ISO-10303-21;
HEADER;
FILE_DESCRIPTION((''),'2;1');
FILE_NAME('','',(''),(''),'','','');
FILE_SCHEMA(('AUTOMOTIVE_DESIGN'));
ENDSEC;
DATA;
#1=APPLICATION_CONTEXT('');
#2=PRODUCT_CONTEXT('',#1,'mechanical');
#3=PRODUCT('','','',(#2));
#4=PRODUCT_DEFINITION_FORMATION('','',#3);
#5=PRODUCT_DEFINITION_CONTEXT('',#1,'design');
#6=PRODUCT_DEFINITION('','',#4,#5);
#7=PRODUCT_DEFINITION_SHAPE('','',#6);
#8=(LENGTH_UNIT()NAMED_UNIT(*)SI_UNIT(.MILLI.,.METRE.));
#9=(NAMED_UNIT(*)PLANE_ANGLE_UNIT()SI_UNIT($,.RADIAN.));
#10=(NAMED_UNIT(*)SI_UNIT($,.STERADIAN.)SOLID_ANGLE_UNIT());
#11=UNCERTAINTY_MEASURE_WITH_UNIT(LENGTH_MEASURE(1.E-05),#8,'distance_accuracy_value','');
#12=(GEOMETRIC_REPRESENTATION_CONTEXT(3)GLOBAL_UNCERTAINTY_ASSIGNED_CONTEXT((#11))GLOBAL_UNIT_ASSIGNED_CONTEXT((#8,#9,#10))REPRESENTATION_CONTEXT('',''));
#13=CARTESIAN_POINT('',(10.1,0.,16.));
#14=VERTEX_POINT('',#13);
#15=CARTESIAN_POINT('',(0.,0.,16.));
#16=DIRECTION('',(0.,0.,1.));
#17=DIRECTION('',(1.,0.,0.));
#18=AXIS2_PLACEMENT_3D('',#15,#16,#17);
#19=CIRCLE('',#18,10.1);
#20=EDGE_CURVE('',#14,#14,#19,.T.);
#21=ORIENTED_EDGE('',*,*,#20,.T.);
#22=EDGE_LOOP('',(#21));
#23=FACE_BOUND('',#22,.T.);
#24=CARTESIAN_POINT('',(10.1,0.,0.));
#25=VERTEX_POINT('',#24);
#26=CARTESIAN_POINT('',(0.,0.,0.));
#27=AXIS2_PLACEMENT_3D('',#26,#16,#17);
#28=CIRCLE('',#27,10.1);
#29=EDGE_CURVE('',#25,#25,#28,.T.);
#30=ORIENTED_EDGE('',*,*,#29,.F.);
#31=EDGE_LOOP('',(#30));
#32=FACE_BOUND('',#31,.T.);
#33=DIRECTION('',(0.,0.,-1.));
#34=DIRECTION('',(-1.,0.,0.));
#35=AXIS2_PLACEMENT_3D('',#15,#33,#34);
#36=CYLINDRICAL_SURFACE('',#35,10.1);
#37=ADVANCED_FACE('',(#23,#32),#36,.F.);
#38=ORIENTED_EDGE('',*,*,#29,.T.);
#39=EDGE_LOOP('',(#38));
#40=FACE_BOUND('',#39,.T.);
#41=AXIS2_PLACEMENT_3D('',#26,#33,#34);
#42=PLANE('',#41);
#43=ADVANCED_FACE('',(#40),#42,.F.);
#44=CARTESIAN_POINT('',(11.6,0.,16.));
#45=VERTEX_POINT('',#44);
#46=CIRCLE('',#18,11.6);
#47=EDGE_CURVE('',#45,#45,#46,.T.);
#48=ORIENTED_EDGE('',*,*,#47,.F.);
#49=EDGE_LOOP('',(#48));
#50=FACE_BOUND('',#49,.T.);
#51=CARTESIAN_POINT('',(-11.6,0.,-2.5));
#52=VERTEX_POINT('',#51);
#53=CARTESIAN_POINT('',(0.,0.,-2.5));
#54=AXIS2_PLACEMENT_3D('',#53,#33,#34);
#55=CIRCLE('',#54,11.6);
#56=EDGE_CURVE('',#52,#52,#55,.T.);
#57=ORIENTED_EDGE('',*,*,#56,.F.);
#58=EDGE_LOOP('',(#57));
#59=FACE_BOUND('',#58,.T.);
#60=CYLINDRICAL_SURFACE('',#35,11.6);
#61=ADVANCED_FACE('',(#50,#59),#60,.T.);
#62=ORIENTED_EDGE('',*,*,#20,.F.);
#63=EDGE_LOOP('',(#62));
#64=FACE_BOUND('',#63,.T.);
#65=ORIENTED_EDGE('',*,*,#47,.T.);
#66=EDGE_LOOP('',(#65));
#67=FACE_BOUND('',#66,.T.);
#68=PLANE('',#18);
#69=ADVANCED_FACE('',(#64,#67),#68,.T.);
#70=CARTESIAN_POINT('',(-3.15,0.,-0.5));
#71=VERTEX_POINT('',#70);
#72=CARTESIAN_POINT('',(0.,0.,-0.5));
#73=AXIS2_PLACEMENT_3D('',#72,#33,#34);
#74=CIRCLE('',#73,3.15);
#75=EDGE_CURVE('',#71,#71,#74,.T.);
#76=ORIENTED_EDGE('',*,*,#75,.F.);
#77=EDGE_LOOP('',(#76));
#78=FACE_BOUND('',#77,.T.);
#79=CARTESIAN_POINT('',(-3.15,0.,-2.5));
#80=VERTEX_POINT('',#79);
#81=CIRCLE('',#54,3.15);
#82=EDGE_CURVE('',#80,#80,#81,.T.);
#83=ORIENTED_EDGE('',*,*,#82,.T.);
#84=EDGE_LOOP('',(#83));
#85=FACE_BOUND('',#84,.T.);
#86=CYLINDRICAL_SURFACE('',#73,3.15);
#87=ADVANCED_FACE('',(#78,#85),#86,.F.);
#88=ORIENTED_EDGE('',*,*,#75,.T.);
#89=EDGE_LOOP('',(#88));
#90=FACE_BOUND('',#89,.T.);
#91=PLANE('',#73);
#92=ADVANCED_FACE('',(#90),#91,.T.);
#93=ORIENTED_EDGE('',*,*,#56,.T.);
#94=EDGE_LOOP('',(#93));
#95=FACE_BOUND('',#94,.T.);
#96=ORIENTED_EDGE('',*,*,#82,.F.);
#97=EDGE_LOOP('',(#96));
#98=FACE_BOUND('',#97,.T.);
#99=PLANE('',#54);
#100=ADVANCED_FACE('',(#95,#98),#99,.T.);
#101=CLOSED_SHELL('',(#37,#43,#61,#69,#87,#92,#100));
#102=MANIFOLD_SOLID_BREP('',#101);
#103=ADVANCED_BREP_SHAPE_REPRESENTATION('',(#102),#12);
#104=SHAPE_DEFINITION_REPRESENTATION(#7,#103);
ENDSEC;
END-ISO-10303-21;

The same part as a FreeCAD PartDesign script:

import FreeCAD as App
import Part
import Sketcher
Q = App.Units.Quantity

doc = App.newDocument("Part")
body = doc.addObject("PartDesign::Body", "Body")

sketch1 = doc.addObject("Sketcher::SketchObject", "Sketch")
body.addObject(sketch1)
sketch1.AttachmentSupport = (doc.XY_Plane, [""])
sketch1.MapMode = "FlatFace"
sketch1.addGeometry([
    Part.Circle(App.Vector(0, 0, 0), App.Vector(0, 0, 1), 12),
    Part.Circle(App.Vector(0, 0, 0), App.Vector(0, 0, 1), 10),
], False)
sketch1.addConstraint([
    Sketcher.Constraint("Coincident", 0, 3, -1, 1),
    Sketcher.Constraint("Coincident", 1, 3, -1, 1),
    Sketcher.Constraint("Diameter", 0, Q("23.2 mm")),
    Sketcher.Constraint("Diameter", 1, Q("20.2 mm")),
])
pad1 = doc.addObject("PartDesign::Pad", "Pad")
body.addObject(pad1)
pad1.Profile = sketch1
pad1.Length = 16

sketch2 = doc.addObject("Sketcher::SketchObject", "Sketch001")
body.addObject(sketch2)
sketch2.AttachmentSupport = (doc.XY_Plane, [""])
sketch2.MapMode = "FlatFace"
sketch2.AttachmentOffset = App.Placement(App.Vector(0, 0, -2.5), App.Rotation())
sketch2.addGeometry(Part.Circle(App.Vector(0, 0, 0), App.Vector(0, 0, 1), 12), False)
sketch2.addConstraint([
    Sketcher.Constraint("Coincident", 0, 3, -1, 1),
    Sketcher.Constraint("Diameter", 0, Q("23.2 mm")),
])
pad2 = doc.addObject("PartDesign::Pad", "Pad001")
body.addObject(pad2)
pad2.Profile = sketch2
pad2.Length = 2.5

sketch3 = doc.addObject("Sketcher::SketchObject", "Sketch002")
body.addObject(sketch3)
sketch3.AttachmentSupport = (doc.XY_Plane, [""])
sketch3.MapMode = "FlatFace"
sketch3.AttachmentOffset = App.Placement(App.Vector(0, 0, -2.5), App.Rotation())
sketch3.addGeometry(Part.Circle(App.Vector(0, 0, 0), App.Vector(0, 0, 1), 3.1), False)
sketch3.addConstraint([
    Sketcher.Constraint("Coincident", 0, 3, -1, 1),
    Sketcher.Constraint("Diameter", 0, Q("6.3 mm")),
])
pocket1 = doc.addObject("PartDesign::Pocket", "Pocket")
body.addObject(pocket1)
pocket1.Profile = sketch3
pocket1.Length = 2
pocket1.Reversed = True

doc.recompute()
